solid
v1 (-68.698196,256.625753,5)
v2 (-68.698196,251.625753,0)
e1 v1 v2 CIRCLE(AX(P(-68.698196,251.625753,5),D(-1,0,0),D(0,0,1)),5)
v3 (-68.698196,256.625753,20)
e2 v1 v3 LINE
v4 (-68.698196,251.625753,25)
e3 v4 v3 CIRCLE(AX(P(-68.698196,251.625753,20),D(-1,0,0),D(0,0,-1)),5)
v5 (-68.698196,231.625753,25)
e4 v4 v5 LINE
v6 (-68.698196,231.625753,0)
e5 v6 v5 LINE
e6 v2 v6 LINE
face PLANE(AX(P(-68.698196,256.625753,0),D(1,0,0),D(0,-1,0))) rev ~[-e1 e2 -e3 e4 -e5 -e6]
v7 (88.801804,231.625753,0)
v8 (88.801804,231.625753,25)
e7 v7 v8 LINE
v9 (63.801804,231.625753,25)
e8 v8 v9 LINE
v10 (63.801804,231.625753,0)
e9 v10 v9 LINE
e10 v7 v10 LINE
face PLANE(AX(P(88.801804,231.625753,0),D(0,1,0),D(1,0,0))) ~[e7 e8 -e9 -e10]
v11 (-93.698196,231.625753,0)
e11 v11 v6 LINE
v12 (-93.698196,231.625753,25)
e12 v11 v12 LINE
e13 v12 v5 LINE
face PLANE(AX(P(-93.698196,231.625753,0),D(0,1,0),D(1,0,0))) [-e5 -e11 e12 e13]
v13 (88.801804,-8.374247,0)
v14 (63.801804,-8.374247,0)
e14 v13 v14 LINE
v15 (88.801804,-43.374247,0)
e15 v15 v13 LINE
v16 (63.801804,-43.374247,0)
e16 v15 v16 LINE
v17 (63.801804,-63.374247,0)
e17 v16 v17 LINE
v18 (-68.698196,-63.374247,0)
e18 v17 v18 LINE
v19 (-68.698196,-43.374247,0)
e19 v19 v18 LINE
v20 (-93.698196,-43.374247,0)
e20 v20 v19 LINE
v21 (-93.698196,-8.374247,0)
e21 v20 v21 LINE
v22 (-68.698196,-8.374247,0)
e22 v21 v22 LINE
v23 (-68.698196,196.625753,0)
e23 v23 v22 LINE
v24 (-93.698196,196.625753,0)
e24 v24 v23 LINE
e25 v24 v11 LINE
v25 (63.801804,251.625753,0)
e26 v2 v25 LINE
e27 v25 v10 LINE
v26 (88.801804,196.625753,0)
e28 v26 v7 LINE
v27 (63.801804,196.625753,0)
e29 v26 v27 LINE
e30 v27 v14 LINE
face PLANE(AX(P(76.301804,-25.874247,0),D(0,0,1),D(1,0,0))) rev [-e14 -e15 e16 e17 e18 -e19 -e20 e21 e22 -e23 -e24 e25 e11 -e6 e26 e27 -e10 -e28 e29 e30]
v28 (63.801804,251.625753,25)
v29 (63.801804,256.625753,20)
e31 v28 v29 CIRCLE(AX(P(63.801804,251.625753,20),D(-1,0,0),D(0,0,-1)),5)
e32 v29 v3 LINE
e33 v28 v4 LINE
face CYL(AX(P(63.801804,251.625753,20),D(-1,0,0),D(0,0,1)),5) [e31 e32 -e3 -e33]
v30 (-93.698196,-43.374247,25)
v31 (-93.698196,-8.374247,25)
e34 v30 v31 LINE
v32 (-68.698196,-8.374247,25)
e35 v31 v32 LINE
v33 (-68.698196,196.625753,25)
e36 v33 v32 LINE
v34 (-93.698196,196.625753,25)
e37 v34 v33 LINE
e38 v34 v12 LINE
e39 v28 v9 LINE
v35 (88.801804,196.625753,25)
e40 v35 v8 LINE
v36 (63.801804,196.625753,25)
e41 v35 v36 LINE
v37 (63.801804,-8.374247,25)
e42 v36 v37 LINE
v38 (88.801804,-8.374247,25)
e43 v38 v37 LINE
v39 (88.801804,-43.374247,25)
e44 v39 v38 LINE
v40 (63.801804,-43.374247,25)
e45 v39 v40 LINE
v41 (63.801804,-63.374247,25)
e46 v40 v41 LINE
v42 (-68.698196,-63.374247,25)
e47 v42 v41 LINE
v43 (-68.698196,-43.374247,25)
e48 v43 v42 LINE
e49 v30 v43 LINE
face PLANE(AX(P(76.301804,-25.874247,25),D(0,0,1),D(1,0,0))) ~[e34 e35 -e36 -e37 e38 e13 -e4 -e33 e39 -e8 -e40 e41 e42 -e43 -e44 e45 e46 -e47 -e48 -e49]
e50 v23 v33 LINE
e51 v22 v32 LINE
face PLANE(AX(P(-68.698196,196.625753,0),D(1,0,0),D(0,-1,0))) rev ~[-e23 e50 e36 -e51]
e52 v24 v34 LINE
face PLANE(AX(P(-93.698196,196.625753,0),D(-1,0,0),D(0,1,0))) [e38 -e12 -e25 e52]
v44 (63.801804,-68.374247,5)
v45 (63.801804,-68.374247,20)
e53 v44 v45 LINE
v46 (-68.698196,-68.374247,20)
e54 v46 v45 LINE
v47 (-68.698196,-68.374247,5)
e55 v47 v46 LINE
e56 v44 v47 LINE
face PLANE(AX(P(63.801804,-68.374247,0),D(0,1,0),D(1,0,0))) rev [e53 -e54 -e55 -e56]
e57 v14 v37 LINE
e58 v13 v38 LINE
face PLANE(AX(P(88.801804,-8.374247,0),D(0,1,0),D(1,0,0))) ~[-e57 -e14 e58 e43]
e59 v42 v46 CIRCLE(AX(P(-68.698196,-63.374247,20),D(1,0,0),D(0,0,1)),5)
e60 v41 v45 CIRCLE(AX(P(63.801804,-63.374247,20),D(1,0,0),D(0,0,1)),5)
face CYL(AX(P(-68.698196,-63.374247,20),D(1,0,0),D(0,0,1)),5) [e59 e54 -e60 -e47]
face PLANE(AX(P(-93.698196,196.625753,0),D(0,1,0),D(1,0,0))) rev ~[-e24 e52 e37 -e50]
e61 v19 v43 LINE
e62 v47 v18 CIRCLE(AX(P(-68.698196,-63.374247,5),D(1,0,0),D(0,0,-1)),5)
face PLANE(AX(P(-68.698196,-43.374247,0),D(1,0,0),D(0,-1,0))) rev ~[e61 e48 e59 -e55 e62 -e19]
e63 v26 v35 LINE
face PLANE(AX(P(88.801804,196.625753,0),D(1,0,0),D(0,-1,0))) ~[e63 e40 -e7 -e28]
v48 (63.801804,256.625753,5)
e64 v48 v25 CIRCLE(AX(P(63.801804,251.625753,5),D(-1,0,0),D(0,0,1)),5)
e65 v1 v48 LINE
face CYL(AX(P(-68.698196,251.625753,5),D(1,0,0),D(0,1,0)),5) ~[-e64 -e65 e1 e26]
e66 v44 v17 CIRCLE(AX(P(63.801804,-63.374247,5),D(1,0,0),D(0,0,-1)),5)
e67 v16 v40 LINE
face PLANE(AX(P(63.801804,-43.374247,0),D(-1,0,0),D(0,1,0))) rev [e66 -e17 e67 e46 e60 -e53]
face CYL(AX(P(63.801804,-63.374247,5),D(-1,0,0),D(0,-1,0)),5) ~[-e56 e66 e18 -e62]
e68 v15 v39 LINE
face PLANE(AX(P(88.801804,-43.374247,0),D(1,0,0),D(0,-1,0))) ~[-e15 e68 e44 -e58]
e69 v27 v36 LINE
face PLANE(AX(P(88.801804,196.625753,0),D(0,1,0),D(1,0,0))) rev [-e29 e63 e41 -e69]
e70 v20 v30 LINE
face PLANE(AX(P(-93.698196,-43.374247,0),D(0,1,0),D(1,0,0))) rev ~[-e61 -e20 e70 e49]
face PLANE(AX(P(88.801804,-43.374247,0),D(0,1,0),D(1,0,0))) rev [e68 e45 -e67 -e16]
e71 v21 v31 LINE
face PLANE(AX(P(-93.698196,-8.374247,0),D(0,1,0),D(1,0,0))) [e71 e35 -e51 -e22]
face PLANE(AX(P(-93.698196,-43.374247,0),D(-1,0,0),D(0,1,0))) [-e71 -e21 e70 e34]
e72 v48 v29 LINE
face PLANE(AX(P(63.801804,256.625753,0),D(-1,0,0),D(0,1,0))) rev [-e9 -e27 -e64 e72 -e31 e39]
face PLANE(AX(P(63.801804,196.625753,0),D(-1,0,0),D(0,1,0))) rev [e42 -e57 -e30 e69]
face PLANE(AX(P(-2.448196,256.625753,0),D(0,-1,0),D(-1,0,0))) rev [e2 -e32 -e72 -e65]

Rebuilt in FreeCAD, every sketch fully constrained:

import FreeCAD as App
import Part
import Sketcher
from FreeCAD import Vector


def edges_at(feature, points):
    """Names of the edges that pass closest to the given points."""
    edges = feature.Shape.Edges
    near = lambda p: min(range(len(edges)), key=lambda i: edges[i].distToShape(Part.Vertex(*p))[0])
    return sorted({f"Edge{near(p) + 1}" for p in points})


def add_polygon(sketch, points):
    """Adds a closed chain of lines whose ends are joined by coincident constraints."""
    first, n = sketch.GeometryCount, len(points)
    for a, b in zip(points, points[1:] + points[:1]):
        sketch.addGeometry(Part.LineSegment(App.Vector(*a, 0), App.Vector(*b, 0)), False)
    for i in range(n):
        sketch.addConstraint(Sketcher.Constraint("Coincident", first + i, 2, first + (i + 1) % n, 1))

doc = App.newDocument("Part")
body = doc.addObject("PartDesign::Body", "Body")

sketch1 = doc.addObject("Sketcher::SketchObject", "Sketch")
body.addObject(sketch1)
sketch1.AttachmentSupport = (doc.XY_Plane, [""])
sketch1.MapMode = "FlatFace"
add_polygon(sketch1, [(-94, -8), (-94, -43), (-69, -43), (-69, -68), (-2, -68), (-2, 257), (-69, 257), (-69, 232), (-94, 232), (-94, 197), (-69, 197), (-69, -8)])
sketch1.addConstraint([
    Sketcher.Constraint("Vertical", 0),
    Sketcher.Constraint("Horizontal", 1),
    Sketcher.Constraint("Vertical", 2),
    Sketcher.Constraint("Horizontal", 3),
    Sketcher.Constraint("Vertical", 4),
    Sketcher.Constraint("Horizontal", 5),
    Sketcher.Constraint("Vertical", 6),
    Sketcher.Constraint("Horizontal", 7),
    Sketcher.Constraint("Vertical", 8),
    Sketcher.Constraint("Horizontal", 9),
    Sketcher.Constraint("Vertical", 10),
    Sketcher.Constraint("Horizontal", 11),
    Sketcher.Constraint("Vertical", 2, 2, 5, 2),
    Sketcher.Constraint("Vertical", 0, 2, 7, 2),
    Sketcher.Constraint("Vertical", 6, 2, 9, 2),
    Sketcher.Constraint("Equal", 11, 2),
    Sketcher.Constraint("Equal", 2, 6),
    Sketcher.Constraint("Equal", 0, 8),
    Sketcher.Constraint("DistanceX", 1, 1, 1, 2, 25.0),
    Sketcher.Constraint("DistanceY", 0, 2, 0, 1, 35.0),
    Sketcher.Constraint("DistanceY", 4, 1, 4, 2, 325.0),
    Sketcher.Constraint("DistanceX", 3, 1, 3, 2, 66.25),
    Sketcher.Constraint("DistanceX", 0, 2, -1, 1, 93.698196),
    Sketcher.Constraint("DistanceY", 0, 2, -1, 1, 43.374247),
])
pad1 = doc.addObject("PartDesign::Pad", "Pad")
body.addObject(pad1)
pad1.Profile = sketch1
pad1.Length = 25
body2 = doc.addObject("PartDesign::Body", "Body001")
doc.recompute()

body2.BaseFeature = body
doc.recompute()

mirroring = doc.addObject("Part::Mirroring", "Mirroring")
mirroring.Source = body
mirroring.Base = Vector(-2.448196, 94.125753, 12.5)
mirroring.Normal = Vector(1, 0, 0)
body3 = doc.addObject("PartDesign::Body", "Body002")
body3.BaseFeature = mirroring
boolean = doc.addObject("PartDesign::Boolean", "Boolean")
body2.addObject(boolean)
boolean.Type = "Fuse"
boolean.addObjects([body3])
doc.recompute()

fillet = doc.addObject("PartDesign::Fillet", "Fillet")
body2.addObject(fillet)
fillet.Base = (boolean, edges_at(boolean, [
    (-2.448, 256.626, 0),
    (-2.448, 256.626, 25),
    (-2.448, -68.374, 0),
    (-2.448, -68.374, 25),
]))
fillet.Radius = 5
mirroring.Visibility = False

doc.recompute()
